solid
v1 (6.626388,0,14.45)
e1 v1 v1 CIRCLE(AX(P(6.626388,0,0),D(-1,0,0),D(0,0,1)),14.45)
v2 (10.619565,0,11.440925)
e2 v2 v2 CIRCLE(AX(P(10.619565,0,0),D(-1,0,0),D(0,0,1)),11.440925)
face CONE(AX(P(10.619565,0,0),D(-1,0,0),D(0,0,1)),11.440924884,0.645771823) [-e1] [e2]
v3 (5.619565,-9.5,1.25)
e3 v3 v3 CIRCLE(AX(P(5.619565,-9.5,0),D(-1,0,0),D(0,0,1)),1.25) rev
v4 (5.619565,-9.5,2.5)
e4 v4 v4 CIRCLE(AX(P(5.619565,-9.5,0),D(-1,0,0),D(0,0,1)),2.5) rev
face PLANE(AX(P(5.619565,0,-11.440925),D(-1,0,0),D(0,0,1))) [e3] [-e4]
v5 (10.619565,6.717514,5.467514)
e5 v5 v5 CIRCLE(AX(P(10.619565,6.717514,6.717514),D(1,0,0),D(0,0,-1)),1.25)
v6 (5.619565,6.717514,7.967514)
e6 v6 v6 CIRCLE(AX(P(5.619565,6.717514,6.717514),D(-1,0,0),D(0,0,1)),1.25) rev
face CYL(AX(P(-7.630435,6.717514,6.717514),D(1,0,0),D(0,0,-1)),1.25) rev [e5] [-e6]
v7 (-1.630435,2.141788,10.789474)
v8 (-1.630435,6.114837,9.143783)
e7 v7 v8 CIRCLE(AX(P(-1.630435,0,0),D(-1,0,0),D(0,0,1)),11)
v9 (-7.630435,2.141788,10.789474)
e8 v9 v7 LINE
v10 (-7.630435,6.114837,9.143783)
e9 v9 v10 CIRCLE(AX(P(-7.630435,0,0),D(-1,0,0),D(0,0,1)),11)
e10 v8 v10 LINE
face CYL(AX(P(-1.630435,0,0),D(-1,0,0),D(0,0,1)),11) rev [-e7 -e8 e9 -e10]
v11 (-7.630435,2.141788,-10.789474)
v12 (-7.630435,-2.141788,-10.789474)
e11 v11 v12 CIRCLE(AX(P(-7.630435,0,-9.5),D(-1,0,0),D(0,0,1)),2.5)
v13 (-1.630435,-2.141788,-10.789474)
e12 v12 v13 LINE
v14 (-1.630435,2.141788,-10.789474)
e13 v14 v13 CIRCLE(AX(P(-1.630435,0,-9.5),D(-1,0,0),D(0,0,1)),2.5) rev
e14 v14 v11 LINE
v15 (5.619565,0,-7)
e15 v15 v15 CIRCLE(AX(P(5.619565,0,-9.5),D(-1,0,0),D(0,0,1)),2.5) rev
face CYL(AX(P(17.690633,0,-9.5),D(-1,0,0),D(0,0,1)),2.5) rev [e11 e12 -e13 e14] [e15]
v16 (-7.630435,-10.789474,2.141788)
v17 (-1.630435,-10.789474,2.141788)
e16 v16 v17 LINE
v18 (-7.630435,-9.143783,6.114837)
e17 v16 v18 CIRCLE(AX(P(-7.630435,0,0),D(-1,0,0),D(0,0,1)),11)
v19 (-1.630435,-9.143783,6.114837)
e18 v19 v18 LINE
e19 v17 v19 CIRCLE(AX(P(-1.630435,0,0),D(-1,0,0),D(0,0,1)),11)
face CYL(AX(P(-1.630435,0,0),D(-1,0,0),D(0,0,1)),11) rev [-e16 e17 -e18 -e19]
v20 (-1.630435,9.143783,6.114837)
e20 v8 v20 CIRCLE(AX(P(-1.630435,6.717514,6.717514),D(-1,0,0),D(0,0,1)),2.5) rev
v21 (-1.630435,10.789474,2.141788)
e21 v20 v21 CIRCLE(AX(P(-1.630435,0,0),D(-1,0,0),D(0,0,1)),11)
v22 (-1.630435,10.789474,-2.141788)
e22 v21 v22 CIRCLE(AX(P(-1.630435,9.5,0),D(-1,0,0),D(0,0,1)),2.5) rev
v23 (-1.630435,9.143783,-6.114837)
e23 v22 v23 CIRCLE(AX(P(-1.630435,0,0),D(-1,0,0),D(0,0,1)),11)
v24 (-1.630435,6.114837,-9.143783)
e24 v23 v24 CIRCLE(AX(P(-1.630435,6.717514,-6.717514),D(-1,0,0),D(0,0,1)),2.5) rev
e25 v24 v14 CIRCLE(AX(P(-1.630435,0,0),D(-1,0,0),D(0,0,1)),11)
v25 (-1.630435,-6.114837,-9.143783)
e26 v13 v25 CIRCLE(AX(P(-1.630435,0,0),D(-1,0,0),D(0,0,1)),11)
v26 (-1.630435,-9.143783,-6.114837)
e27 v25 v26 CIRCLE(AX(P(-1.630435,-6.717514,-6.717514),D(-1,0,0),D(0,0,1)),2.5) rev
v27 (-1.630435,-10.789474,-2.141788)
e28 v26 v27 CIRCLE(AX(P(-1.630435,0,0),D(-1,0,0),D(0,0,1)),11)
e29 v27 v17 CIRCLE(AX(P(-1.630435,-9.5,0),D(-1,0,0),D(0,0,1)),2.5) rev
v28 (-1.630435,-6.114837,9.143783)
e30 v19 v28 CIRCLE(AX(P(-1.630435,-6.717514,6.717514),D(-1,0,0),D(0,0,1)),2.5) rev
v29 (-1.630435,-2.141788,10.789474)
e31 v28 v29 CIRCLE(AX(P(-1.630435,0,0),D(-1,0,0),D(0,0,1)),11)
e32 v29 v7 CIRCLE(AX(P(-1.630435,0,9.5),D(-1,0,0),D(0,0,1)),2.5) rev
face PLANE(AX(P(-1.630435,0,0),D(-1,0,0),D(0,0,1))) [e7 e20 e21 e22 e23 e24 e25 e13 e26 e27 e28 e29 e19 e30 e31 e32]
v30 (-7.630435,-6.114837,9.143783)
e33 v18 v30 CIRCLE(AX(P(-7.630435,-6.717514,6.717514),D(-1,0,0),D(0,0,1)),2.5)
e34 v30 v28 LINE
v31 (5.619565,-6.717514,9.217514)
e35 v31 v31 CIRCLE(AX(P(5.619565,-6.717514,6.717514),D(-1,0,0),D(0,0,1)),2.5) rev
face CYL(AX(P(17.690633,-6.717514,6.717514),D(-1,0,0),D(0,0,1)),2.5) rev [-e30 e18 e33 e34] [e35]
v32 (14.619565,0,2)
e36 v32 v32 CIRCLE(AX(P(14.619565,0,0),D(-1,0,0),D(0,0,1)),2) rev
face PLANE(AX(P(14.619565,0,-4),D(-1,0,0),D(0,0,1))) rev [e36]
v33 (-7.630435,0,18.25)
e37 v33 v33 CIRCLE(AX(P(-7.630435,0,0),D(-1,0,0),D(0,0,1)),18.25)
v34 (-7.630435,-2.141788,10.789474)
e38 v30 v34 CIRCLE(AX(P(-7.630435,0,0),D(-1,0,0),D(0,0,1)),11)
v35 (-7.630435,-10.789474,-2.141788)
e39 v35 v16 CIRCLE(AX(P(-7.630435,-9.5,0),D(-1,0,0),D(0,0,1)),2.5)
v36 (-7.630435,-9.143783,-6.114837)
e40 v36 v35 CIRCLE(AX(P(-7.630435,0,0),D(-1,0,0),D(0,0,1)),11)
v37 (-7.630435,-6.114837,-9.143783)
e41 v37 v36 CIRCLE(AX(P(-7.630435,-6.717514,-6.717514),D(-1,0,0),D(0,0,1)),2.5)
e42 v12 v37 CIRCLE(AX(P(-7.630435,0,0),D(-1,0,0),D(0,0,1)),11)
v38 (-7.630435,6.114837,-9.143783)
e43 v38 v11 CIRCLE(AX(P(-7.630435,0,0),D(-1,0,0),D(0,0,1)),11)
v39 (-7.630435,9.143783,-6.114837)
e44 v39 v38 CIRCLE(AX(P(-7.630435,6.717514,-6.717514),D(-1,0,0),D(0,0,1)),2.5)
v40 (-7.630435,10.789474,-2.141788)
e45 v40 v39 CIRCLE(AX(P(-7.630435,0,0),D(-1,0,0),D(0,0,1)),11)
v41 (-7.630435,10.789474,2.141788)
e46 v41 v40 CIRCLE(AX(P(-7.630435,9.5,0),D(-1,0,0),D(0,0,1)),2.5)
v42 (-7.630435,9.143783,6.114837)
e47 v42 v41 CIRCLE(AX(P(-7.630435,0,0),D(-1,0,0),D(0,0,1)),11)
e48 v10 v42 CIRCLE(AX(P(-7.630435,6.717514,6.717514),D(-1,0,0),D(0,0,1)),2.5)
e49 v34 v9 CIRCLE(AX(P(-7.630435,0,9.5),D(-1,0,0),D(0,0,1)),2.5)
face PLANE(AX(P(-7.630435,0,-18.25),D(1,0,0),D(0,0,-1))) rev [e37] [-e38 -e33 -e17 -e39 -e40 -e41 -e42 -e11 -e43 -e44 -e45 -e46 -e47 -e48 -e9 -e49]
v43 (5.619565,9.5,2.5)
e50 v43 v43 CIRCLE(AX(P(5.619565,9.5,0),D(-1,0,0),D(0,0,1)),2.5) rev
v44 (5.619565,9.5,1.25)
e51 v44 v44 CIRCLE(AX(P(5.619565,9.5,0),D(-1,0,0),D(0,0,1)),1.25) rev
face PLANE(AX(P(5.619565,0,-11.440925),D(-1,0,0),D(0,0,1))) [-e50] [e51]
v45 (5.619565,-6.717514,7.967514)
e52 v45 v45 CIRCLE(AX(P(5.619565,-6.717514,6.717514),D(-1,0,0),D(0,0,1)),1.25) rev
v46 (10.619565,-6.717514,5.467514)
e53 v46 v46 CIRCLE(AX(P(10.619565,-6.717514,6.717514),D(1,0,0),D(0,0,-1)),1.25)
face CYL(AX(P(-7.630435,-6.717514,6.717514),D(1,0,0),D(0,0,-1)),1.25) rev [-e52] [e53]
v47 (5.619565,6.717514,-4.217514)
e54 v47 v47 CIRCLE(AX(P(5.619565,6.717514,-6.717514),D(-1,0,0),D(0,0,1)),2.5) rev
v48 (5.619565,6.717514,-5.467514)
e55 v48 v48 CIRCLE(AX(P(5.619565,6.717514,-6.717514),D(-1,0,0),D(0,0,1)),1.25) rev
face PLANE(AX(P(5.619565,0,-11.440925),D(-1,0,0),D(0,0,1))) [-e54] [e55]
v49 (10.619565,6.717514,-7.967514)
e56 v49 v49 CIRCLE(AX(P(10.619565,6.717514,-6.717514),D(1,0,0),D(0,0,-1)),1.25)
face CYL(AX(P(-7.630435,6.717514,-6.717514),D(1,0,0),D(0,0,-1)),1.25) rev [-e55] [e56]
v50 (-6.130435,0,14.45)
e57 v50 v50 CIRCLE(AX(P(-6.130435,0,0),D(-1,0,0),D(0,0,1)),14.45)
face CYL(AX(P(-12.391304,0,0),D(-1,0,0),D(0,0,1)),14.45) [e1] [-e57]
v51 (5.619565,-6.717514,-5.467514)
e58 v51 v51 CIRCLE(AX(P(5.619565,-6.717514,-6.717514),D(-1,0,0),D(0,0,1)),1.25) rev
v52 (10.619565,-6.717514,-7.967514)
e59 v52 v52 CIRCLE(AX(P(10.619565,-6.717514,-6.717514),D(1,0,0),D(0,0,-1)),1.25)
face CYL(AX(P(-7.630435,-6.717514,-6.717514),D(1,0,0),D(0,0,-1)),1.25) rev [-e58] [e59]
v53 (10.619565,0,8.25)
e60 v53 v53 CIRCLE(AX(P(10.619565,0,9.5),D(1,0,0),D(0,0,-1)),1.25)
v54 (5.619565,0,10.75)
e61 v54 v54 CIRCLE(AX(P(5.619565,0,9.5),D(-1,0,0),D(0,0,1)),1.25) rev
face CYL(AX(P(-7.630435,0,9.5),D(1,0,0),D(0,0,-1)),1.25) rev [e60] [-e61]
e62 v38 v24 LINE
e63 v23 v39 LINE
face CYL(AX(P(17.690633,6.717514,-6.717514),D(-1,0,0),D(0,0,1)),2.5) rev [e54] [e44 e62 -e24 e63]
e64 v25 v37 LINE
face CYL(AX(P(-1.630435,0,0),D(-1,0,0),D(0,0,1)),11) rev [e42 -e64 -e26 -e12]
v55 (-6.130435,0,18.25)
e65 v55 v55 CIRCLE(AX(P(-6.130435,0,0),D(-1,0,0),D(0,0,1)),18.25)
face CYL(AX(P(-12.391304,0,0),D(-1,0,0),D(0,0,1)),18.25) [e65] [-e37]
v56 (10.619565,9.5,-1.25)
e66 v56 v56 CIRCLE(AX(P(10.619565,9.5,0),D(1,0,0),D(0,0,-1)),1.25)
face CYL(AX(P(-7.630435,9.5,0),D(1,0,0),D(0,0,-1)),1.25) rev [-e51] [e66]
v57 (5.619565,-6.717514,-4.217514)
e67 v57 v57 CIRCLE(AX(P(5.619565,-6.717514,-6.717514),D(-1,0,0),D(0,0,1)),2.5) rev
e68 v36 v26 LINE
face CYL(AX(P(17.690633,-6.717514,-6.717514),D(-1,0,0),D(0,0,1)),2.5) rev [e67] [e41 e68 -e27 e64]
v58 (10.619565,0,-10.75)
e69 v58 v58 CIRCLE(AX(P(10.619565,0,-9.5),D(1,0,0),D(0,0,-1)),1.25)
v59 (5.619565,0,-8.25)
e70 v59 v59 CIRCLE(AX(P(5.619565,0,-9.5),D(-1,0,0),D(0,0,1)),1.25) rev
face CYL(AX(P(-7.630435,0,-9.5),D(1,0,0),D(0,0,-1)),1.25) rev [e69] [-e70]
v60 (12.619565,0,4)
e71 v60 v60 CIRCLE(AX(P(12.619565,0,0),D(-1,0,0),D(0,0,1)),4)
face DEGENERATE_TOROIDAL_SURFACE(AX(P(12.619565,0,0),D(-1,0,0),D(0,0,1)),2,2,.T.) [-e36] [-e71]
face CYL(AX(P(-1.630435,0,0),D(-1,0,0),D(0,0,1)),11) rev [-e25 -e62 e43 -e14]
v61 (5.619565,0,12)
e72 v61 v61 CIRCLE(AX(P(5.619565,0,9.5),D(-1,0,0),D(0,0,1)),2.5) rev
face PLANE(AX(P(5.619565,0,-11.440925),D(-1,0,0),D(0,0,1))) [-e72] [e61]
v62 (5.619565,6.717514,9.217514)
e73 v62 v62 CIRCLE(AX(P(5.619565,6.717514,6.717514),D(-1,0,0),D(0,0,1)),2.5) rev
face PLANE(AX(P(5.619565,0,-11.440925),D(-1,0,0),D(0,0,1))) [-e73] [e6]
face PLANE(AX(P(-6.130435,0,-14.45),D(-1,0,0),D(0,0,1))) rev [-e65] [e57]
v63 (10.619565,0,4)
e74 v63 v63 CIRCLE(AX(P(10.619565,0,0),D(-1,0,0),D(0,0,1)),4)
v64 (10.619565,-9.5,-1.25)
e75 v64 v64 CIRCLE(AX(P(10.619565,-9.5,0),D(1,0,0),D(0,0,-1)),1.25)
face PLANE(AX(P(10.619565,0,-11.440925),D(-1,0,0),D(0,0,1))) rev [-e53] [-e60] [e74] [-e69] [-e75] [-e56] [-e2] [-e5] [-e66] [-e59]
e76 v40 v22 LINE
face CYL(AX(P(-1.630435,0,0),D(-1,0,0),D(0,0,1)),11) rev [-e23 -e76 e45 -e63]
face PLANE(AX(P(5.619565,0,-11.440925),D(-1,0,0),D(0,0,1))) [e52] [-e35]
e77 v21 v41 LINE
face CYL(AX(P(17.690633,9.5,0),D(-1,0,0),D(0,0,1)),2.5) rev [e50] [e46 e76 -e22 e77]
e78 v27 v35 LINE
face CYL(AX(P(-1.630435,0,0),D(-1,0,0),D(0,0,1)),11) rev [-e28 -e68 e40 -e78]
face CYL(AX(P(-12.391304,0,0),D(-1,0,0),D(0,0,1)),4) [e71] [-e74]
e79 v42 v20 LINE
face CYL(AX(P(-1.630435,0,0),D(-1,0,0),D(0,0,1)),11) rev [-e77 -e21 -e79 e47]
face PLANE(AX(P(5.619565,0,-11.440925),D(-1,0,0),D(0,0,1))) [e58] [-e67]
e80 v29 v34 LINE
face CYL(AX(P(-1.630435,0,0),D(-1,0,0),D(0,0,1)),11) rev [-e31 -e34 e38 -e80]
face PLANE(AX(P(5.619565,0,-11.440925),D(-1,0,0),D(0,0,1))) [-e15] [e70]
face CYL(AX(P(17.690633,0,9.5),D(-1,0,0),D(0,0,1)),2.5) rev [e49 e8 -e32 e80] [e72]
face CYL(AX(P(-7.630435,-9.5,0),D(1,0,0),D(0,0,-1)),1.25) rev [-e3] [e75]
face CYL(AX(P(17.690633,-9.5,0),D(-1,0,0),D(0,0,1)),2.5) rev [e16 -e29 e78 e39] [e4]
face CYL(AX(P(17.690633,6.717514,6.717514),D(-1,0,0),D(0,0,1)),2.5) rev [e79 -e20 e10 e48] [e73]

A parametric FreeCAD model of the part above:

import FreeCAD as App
import Part
import Sketcher
from FreeCAD import Vector
Q = App.Units.Quantity


def edges_at(feature, points):
    """Names of the edges that pass closest to the given points."""
    edges = feature.Shape.Edges
    near = lambda p: min(range(len(edges)), key=lambda i: edges[i].distToShape(Part.Vertex(*p))[0])
    return sorted({f"Edge{near(p) + 1}" for p in points})


def add_polygon(sketch, points):
    """Adds a closed chain of lines whose ends are joined by coincident constraints."""
    first, n = sketch.GeometryCount, len(points)
    for a, b in zip(points, points[1:] + points[:1]):
        sketch.addGeometry(Part.LineSegment(App.Vector(*a, 0), App.Vector(*b, 0)), False)
    for i in range(n):
        sketch.addConstraint(Sketcher.Constraint("Coincident", first + i, 2, first + (i + 1) % n, 1))

doc = App.newDocument("Part")
params = doc.addObject("Spreadsheet::Sheet", "Params")
for row, (alias, value) in enumerate([
    ("sketch1_width", "4 mm"),
    ("sketch1_length", "5 mm"),
    ("sketch1_width2", "1.5 mm"),
    ("sketch1_height", "3.8 mm"),
    ("sketch1_width3", "22.25 mm"),
    ("revolution_angle", "360 deg"),
    ("sketch2_diameter", "2.5 mm"),
    ("fillet_radius", "2 mm"),
    ("sketch3_diameter", "5 mm"),
    ("pocket2_length", "13.25 mm"),
    ("sketch4_diameter", "22 mm"),
    ("pocket3_length", "6 mm"),
], start=1):
    params.set(f"A{row}", alias)
    params.set(f"B{row}", "=" + value)
    params.setAlias(f"B{row}", alias)

body = doc.addObject("PartDesign::Body", "Body")

# Sketch on XZ plane
sketch1 = body.newObject("Sketcher::SketchObject", "Sketch")
sketch1.AttachmentSupport = (doc.getObject("XZ_Plane"), [""])
sketch1.MapMode = "FlatFace"
add_polygon(sketch1, [(6.6, -14.4), (-6.1, -14.4), (-6.1, -18.2), (-7.6, -18.2), (-7.6, 0), (14.6, 0), (14.6, -4), (10.6, -4), (10.6, -11.4)])  # lines 0-8
sketch1.addConstraint(Sketcher.Constraint("Horizontal", 0))
sketch1.addConstraint(Sketcher.Constraint("Vertical", 1))
sketch1.addConstraint(Sketcher.Constraint("Horizontal", 2))
sketch1.addConstraint(Sketcher.Constraint("Vertical", 3))
sketch1.addConstraint(Sketcher.Constraint("Horizontal", 4))
sketch1.addConstraint(Sketcher.Constraint("Vertical", 5))
sketch1.addConstraint(Sketcher.Constraint("Horizontal", 6))
sketch1.addConstraint(Sketcher.Constraint("Vertical", 7))
sketch1.addConstraint(Sketcher.Constraint("PointOnObject", 3, 2, -1))
sketch1.addConstraint(Sketcher.Constraint("Equal", 6, 5))
sketch1.addConstraint(Sketcher.Constraint("DistanceX", 6, 2, 6, 1, Q("4 mm")))
sketch1.addConstraint(Sketcher.Constraint("Angle", 8, Q("-143 deg")))
sketch1.addConstraint(Sketcher.Constraint("Distance", 8, Q("5 mm")))
sketch1.addConstraint(Sketcher.Constraint("DistanceX", 2, 2, 2, 1, Q("1.5 mm")))
sketch1.addConstraint(Sketcher.Constraint("DistanceY", 1, 2, 1, 1, Q("3.8 mm")))
sketch1.addConstraint(Sketcher.Constraint("DistanceX", 4, 1, 4, 2, Q("22.25 mm")))
sketch1.addConstraint(Sketcher.Constraint("DistanceY", 3, 1, 3, 2, Q("18.25 mm")))
sketch1.addConstraint(Sketcher.Constraint("DistanceX", 0, 2, -1, 1, Q("6.130435 mm")))
sketch1.setExpression("Constraints[19]", "Params.sketch1_width")
sketch1.setExpression("Constraints[21]", "Params.sketch1_length")
sketch1.setExpression("Constraints[22]", "Params.sketch1_width2")
sketch1.setExpression("Constraints[23]", "Params.sketch1_height")
sketch1.setExpression("Constraints[24]", "Params.sketch1_width3")
revolution = body.newObject("PartDesign::Revolution", "Revolution")
revolution.Profile = sketch1
revolution.ReferenceAxis = (sketch1, ["H_Axis"])
revolution.setExpression("Angle", "Params.revolution_angle")

# Sketch on YZ plane
sketch2 = body.newObject("Sketcher::SketchObject", "Sketch001")
sketch2.AttachmentSupport = (doc.getObject("YZ_Plane"), [""])
sketch2.MapMode = "FlatFace"
sketch2.AttachmentOffset = App.Placement(Vector(0, 0, 10.619565), App.Rotation())
sketch2.addGeometry(Part.Circle(Vector(9.5, 0, 0), Vector(0, 0, 1), 1.2), False)
sketch2.addGeometry(Part.Circle(Vector(6.7, -6.7, 0), Vector(0, 0, 1), 1.2), False)
sketch2.addGeometry(Part.Circle(Vector(0, -9.5, 0), Vector(0, 0, 1), 1.2), False)
sketch2.addGeometry(Part.Circle(Vector(-6.7, -6.7, 0), Vector(0, 0, 1), 1.2), False)
sketch2.addGeometry(Part.Circle(Vector(-9.5, 0, 0), Vector(0, 0, 1), 1.2), False)
sketch2.addGeometry(Part.Circle(Vector(-6.7, 6.7, 0), Vector(0, 0, 1), 1.2), False)
sketch2.addGeometry(Part.Circle(Vector(0, 9.5, 0), Vector(0, 0, 1), 1.2), False)
sketch2.addGeometry(Part.Circle(Vector(6.7, 6.7, 0), Vector(0, 0, 1), 1.2), False)
sketch2.addConstraint(Sketcher.Constraint("Equal", 0, 1))
sketch2.addConstraint(Sketcher.Constraint("Equal", 1, 2))
sketch2.addConstraint(Sketcher.Constraint("Equal", 2, 3))
sketch2.addConstraint(Sketcher.Constraint("Equal", 3, 4))
sketch2.addConstraint(Sketcher.Constraint("Equal", 4, 5))
sketch2.addConstraint(Sketcher.Constraint("Equal", 5, 6))
sketch2.addConstraint(Sketcher.Constraint("Equal", 6, 7))
sketch2.addConstraint(Sketcher.Constraint("Symmetric", 0, 3, 4, 3, -1, 1))
sketch2.addConstraint(Sketcher.Constraint("Symmetric", 1, 3, 5, 3, -1, 1))
sketch2.addConstraint(Sketcher.Constraint("Symmetric", 2, 3, 6, 3, -1, 1))
sketch2.addConstraint(Sketcher.Constraint("Symmetric", 3, 3, 7, 3, -1, 1))
sketch2.addConstraint(Sketcher.Constraint("Symmetric", 1, 3, 3, 3, -2))
sketch2.addConstraint(Sketcher.Constraint("PointOnObject", 0, 3, -1))
sketch2.addConstraint(Sketcher.Constraint("PointOnObject", 2, 3, -2))
sketch2.addConstraint(Sketcher.Constraint("Diameter", 0, Q("2.5 mm")))
sketch2.addConstraint(Sketcher.Constraint("DistanceX", 4, 3, 0, 3, Q("19 mm")))
sketch2.addConstraint(Sketcher.Constraint("DistanceY", 2, 3, -1, 1, Q("9.5 mm")))
sketch2.addConstraint(Sketcher.Constraint("DistanceX", 3, 3, 1, 3, Q("13.435029 mm")))
sketch2.addConstraint(Sketcher.Constraint("DistanceY", 3, 3, 5, 3, Q("13.435029 mm")))
sketch2.setExpression("Constraints[14]", "Params.sketch2_diameter")
pocket1 = body.newObject("PartDesign::Pocket", "Pocket")
pocket1.Profile = sketch2
pocket1.Type = "ThroughAll"
doc.recompute()

fillet = body.newObject("PartDesign::Fillet", "Fillet")
fillet.Base = (pocket1, edges_at(pocket1, [(14.62, 0, 4)]))
fillet.setExpression("Radius", "Params.fillet_radius")

# Sketch on YZ plane
sketch3 = body.newObject("Sketcher::SketchObject", "Sketch002")
sketch3.AttachmentSupport = (doc.getObject("YZ_Plane"), [""])
sketch3.MapMode = "FlatFace"
sketch3.AttachmentOffset = App.Placement(Vector(0, 0, -7.630435), App.Rotation())
sketch3.addGeometry(Part.Circle(Vector(9.5, 0, 0), Vector(0, 0, 1), 2.5), False)
sketch3.addGeometry(Part.Circle(Vector(6.7, 6.7, 0), Vector(0, 0, 1), 2.5), False)
sketch3.addGeometry(Part.Circle(Vector(0, 9.5, 0), Vector(0, 0, 1), 2.5), False)
sketch3.addGeometry(Part.Circle(Vector(-6.7, 6.7, 0), Vector(0, 0, 1), 2.5), False)
sketch3.addGeometry(Part.Circle(Vector(-9.5, 0, 0), Vector(0, 0, 1), 2.5), False)
sketch3.addGeometry(Part.Circle(Vector(-6.7, -6.7, 0), Vector(0, 0, 1), 2.5), False)
sketch3.addGeometry(Part.Circle(Vector(0, -9.5, 0), Vector(0, 0, 1), 2.5), False)
sketch3.addGeometry(Part.Circle(Vector(6.7, -6.7, 0), Vector(0, 0, 1), 2.5), False)
sketch3.addConstraint(Sketcher.Constraint("Equal", 0, 1))
sketch3.addConstraint(Sketcher.Constraint("Equal", 1, 2))
sketch3.addConstraint(Sketcher.Constraint("Equal", 2, 3))
sketch3.addConstraint(Sketcher.Constraint("Equal", 3, 4))
sketch3.addConstraint(Sketcher.Constraint("Equal", 4, 5))
sketch3.addConstraint(Sketcher.Constraint("Equal", 5, 6))
sketch3.addConstraint(Sketcher.Constraint("Equal", 6, 7))
sketch3.addConstraint(Sketcher.Constraint("Symmetric", 0, 3, 4, 3, -1, 1))
sketch3.addConstraint(Sketcher.Constraint("Symmetric", 1, 3, 5, 3, -1, 1))
sketch3.addConstraint(Sketcher.Constraint("Symmetric", 2, 3, 6, 3, -1, 1))
sketch3.addConstraint(Sketcher.Constraint("Symmetric", 3, 3, 7, 3, -1, 1))
sketch3.addConstraint(Sketcher.Constraint("Symmetric", 1, 3, 3, 3, -2))
sketch3.addConstraint(Sketcher.Constraint("PointOnObject", 0, 3, -1))
sketch3.addConstraint(Sketcher.Constraint("PointOnObject", 2, 3, -2))
sketch3.addConstraint(Sketcher.Constraint("Diameter", 0, Q("5 mm")))
sketch3.addConstraint(Sketcher.Constraint("DistanceX", 4, 3, 0, 3, Q("19 mm")))
sketch3.addConstraint(Sketcher.Constraint("DistanceY", -1, 1, 2, 3, Q("9.5 mm")))
sketch3.addConstraint(Sketcher.Constraint("DistanceX", 3, 3, 1, 3, Q("13.435029 mm")))
sketch3.addConstraint(Sketcher.Constraint("DistanceY", 5, 3, 3, 3, Q("13.435029 mm")))
sketch3.setExpression("Constraints[14]", "Params.sketch3_diameter")
pocket2 = body.newObject("PartDesign::Pocket", "Pocket001")
pocket2.Profile = sketch3
pocket2.setExpression("Length", "Params.pocket2_length")
pocket2.Reversed = True

# Sketch on YZ plane
sketch4 = body.newObject("Sketcher::SketchObject", "Sketch003")
sketch4.AttachmentSupport = (doc.getObject("YZ_Plane"), [""])
sketch4.MapMode = "FlatFace"
sketch4.AttachmentOffset = App.Placement(Vector(0, 0, -7.630435), App.Rotation())
sketch4.addGeometry(Part.Circle(Vector(0, 0, 0), Vector(0, 0, 1), 11), False)
sketch4.addConstraint(Sketcher.Constraint("Coincident", 0, 3, -1, 1))
sketch4.addConstraint(Sketcher.Constraint("Diameter", 0, Q("22 mm")))
sketch4.setExpression("Constraints[1]", "Params.sketch4_diameter")
pocket3 = body.newObject("PartDesign::Pocket", "Pocket002")
pocket3.Profile = sketch4
pocket3.setExpression("Length", "Params.pocket3_length")
pocket3.Reversed = True

doc.recompute()
